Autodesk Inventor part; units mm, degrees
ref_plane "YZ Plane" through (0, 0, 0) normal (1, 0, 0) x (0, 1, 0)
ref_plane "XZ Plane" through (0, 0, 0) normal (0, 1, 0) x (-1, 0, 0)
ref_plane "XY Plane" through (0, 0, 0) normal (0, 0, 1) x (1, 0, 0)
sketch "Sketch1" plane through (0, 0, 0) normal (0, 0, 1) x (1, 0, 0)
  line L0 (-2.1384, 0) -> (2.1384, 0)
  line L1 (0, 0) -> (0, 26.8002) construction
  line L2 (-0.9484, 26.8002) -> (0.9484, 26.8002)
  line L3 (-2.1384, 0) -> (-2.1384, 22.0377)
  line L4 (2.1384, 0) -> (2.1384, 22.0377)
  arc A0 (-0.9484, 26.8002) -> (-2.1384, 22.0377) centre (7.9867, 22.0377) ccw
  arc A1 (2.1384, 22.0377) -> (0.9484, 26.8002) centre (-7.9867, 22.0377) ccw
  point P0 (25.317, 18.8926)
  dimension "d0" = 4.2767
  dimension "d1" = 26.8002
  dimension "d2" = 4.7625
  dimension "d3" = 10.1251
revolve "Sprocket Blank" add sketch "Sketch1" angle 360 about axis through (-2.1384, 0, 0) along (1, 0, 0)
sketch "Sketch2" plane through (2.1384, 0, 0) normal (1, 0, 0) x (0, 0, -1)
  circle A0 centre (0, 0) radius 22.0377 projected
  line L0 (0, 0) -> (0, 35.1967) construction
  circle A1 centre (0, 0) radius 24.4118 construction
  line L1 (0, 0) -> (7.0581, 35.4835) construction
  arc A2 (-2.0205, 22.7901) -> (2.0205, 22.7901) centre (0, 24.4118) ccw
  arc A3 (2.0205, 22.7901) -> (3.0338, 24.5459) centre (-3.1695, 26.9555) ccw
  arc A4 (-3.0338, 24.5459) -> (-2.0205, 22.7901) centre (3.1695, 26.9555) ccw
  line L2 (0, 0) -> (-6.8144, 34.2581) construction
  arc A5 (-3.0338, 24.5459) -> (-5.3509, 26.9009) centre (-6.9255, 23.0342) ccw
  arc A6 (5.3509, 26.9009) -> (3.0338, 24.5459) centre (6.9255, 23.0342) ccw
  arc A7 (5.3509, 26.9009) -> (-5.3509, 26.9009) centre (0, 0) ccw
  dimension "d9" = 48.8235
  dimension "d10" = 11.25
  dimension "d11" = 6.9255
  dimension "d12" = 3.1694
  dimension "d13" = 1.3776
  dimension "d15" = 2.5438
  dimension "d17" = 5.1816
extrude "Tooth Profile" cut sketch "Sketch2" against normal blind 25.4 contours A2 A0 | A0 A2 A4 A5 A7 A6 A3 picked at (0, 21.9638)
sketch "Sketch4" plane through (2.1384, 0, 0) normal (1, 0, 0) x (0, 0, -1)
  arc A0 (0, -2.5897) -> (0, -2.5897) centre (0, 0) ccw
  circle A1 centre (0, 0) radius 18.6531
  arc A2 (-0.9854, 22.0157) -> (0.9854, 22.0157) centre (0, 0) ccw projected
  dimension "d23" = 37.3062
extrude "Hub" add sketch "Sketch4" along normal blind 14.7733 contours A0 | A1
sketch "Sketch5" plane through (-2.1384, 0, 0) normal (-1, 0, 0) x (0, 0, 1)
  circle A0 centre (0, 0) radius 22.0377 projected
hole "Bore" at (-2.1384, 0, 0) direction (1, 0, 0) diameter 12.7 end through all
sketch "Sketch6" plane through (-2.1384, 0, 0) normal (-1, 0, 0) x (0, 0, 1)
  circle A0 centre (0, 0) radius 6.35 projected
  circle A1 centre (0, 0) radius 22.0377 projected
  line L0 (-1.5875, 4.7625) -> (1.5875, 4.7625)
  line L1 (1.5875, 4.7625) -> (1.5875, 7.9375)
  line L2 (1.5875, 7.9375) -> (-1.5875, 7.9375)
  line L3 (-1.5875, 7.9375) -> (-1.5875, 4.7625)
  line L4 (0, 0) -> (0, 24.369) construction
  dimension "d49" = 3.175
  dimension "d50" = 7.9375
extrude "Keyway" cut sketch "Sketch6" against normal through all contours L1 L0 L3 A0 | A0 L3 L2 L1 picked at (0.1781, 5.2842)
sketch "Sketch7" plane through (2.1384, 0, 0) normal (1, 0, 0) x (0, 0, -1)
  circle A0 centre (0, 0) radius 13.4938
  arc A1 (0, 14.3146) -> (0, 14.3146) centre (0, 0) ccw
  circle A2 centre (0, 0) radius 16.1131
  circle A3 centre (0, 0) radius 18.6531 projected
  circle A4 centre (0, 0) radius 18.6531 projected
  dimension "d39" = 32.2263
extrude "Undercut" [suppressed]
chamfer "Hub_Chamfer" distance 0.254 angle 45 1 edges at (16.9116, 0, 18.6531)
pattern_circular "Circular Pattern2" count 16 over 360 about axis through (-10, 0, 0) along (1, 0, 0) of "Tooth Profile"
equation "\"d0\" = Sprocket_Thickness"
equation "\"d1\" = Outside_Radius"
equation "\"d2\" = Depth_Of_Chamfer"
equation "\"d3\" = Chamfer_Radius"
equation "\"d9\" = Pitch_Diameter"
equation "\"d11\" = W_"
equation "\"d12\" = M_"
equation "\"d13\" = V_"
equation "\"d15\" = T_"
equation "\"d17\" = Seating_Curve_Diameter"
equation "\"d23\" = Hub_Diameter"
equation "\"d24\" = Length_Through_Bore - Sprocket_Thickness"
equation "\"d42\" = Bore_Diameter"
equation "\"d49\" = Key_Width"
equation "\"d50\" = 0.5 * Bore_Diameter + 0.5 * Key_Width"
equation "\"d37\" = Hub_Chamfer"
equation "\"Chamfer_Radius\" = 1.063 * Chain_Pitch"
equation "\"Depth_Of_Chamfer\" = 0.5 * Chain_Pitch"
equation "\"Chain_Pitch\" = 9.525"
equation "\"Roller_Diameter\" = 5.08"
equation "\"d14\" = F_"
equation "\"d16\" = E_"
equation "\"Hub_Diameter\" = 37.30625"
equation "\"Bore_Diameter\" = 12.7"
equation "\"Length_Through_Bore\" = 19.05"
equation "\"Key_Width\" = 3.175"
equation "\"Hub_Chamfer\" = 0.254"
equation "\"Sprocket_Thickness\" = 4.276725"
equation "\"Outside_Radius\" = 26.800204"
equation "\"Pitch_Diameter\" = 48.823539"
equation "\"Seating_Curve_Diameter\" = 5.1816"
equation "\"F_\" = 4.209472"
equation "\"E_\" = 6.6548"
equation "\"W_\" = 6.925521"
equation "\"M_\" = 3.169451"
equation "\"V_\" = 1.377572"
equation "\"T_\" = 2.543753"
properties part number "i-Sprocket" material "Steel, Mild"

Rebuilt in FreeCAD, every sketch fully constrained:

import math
import FreeCAD as App
import Part
import Sketcher

V = App.Vector
Q = App.Units.Quantity


def edges_at(feature, points):
    """Names of the edges that pass closest to the given points."""
    edges = feature.Shape.Edges
    near = lambda p: min(range(len(edges)), key=lambda i: edges[i].distToShape(Part.Vertex(*p))[0])
    return sorted({f"Edge{near(p) + 1}" for p in points})

doc = App.newDocument("Part")
body = doc.addObject("PartDesign::Body", "Body")

sketch1 = doc.addObject("Sketcher::SketchObject", "Sketch")
body.addObject(sketch1)
sketch1.AttachmentSupport = (doc.XY_Plane, [""])
sketch1.MapMode = "FlatFace"
sketch1.addGeometry([
    Part.LineSegment(V(-2.1, 22, 0), V(-2.1, 0, 0)),
    Part.LineSegment(V(-2.1, 0, 0), V(2.1, 0, 0)),
    Part.LineSegment(V(2.1, 0, 0), V(2.1, 22, 0)),
    Part.ArcOfCircle(Part.Circle(V(-8, 22, 0), V(0, 0, 1), 10.1), math.radians(0), math.radians(28)),
    Part.LineSegment(V(0.9, 26.8, 0), V(-0.9, 26.8, 0)),
    Part.ArcOfCircle(Part.Circle(V(8, 22, 0), V(0, 0, 1), 10.1), math.radians(152), math.radians(180)),
], False)
sketch1.addConstraint([
    Sketcher.Constraint("Coincident", 0, 2, 1, 1),
    Sketcher.Constraint("Coincident", 1, 2, 2, 1),
    Sketcher.Constraint("Tangent", 2, 2, 3, 1),
    Sketcher.Constraint("Coincident", 3, 2, 4, 1),
    Sketcher.Constraint("Coincident", 4, 2, 5, 1),
    Sketcher.Constraint("Tangent", 5, 2, 0, 1),
    Sketcher.Constraint("Vertical", 0),
    Sketcher.Constraint("Horizontal", 1),
    Sketcher.Constraint("Vertical", 2),
    Sketcher.Constraint("Horizontal", 4),
    Sketcher.Constraint("Equal", 3, 5),
    Sketcher.Constraint("Symmetric", 0, 2, 1, 2, -1, 1),
    Sketcher.Constraint("Horizontal", 3, 3, 5, 3),
    Sketcher.Constraint("Radius", 3, 10.125),
    Sketcher.Constraint("DistanceY", 2, 2, 3, 2, Q("0.1875 in")),
    Sketcher.Constraint("DistanceX", 1, 1, 1, 2, 4.2768),
    Sketcher.Constraint("DistanceY", -1, 1, 3, 2, 26.8002),
])
revolution = doc.addObject("PartDesign::Revolution", "Revolution")
body.addObject(revolution)
revolution.Profile = sketch1
revolution.ReferenceAxis = (sketch1, ["H_Axis"])
revolution.Angle = 360

sketch2 = doc.addObject("Sketcher::SketchObject", "Sketch001")
body.addObject(sketch2)
sketch2.AttachmentSupport = (doc.YZ_Plane, [""])
sketch2.MapMode = "FlatFace"
sketch2.AttachmentOffset = App.Placement(V(0, 0, 0.084189 * 25.4), App.Rotation())
sketch2.addGeometry([
    Part.ArcOfCircle(Part.Circle(V(26.956313, 3.170689, 0), V(0, 0, 1), 6.656258), math.radians(-128.74895), math.radians(-111.230901)),
    Part.ArcOfCircle(Part.Circle(V(23.0342, -6.9255, 0), V(0, 0, 1), 4.175013), math.radians(22.157167), math.radians(68.771736)),
    Part.ArcOfCircle(Part.Circle(V(0, 0, 0), V(0, 0, 1), 27.427916), math.radians(-11.249956), math.radians(11.249956)),
    Part.ArcOfCircle(Part.Circle(V(23.0342, 6.9255, 0), V(0, 0, 1), 4.174993), math.radians(-68.771736), math.radians(-22.157167)),
    Part.ArcOfCircle(Part.Circle(V(26.954878, -3.168202, 0), V(0, 0, 1), 6.65342), math.radians(111.227135), math.radians(128.752715)),
    Part.ArcOfCircle(Part.Circle(V(24.4118, 0, 0), V(0, 0, 1), 2.590817), math.radians(128.751333), math.radians(231.248667)),
], False)
sketch2.addConstraint([
    Sketcher.Constraint("Coincident", 0, 2, 1, 2),
    Sketcher.Constraint("Coincident", 1, 1, 2, 1),
    Sketcher.Constraint("Coincident", 2, 2, 3, 2),
    Sketcher.Constraint("Coincident", 3, 1, 4, 1),
    Sketcher.Constraint("Coincident", 4, 2, 5, 1),
    Sketcher.Constraint("Coincident", 5, 2, 0, 1),
    Sketcher.Constraint("Coincident", 2, 3, -1, 1),
    Sketcher.Constraint("PointOnObject", 5, 3, -1),
    Sketcher.Constraint("Radius", 5, Q("0.102 in")),
    Sketcher.Constraint("DistanceY", 1, 3, -1, 1, 6.9255),
    Sketcher.Constraint("DistanceY", -1, 1, 3, 3, 6.9255),
    Sketcher.Constraint("Radius", 0, 6.6563),
    Sketcher.Constraint("Radius", 1, 4.175),
    Sketcher.Constraint("Radius", 2, 27.428),
    Sketcher.Constraint("Radius", 3, 4.175),
    Sketcher.Constraint("Radius", 4, 6.6534),
    Sketcher.Constraint("DistanceX", 1, 3, 5, 3, 1.3776),
    Sketcher.Constraint("DistanceX", 3, 3, 5, 3, 1.3776),
    Sketcher.Constraint("DistanceY", 1, 3, 1, 1, Q("0.062 in")),
    Sketcher.Constraint("DistanceY", 4, 3, 0, 2, Q("0.0053 in")),
    Sketcher.Constraint("DistanceX", 3, 1, 0, 3, Q("0.0949 in")),
    Sketcher.Constraint("DistanceY", 4, 2, 3, 1, Q("0.0399 in")),
    Sketcher.Constraint("DistanceY", 0, 2, 5, 2, Q("0.0399 in")),
])
pocket1 = doc.addObject("PartDesign::Pocket", "Pocket")
body.addObject(pocket1)
pocket1.Profile = sketch2
pocket1.Length = Q("1 in")

sketch3 = doc.addObject("Sketcher::SketchObject", "Sketch002")
body.addObject(sketch3)
sketch3.AttachmentSupport = (doc.YZ_Plane, [""])
sketch3.MapMode = "FlatFace"
sketch3.AttachmentOffset = App.Placement(V(0, 0, 0.084189 * 25.4), App.Rotation())
sketch3.addGeometry(Part.Circle(V(0, 0, 0), V(0, 0, 1), 19), False)
sketch3.addConstraint([
    Sketcher.Constraint("Coincident", 0, 3, -1, 1),
    Sketcher.Constraint("Diameter", 0, Q("1.468748 in")),
])
pad1 = doc.addObject("PartDesign::Pad", "Pad")
body.addObject(pad1)
pad1.Profile = sketch3
pad1.Length = 14.7733

sketch4 = doc.addObject("Sketcher::SketchObject", "Sketch003")
body.addObject(sketch4)
sketch4.AttachmentSupport = (doc.YZ_Plane, [""])
sketch4.MapMode = "FlatFace"
sketch4.AttachmentOffset = App.Placement(V(0, 0, -0.084189 * 25.4), App.Rotation())
sketch4.addGeometry(Part.Circle(V(0, 0, 0), V(0, 0, 1), 6), False)
sketch4.addConstraint([
    Sketcher.Constraint("Coincident", 0, 3, -1, 1),
    Sketcher.Constraint("Diameter", 0, Q("0.5 in")),
])
doc.recompute()
hole = doc.addObject("PartDesign::Hole", "Hole")
body.addObject(hole)
hole.Profile = sketch4
hole.ThreadType = "None"
hole.Diameter = Q("0.5 in")
hole.DepthType = "ThroughAll"
hole.Reversed = True

sketch5 = doc.addObject("Sketcher::SketchObject", "Sketch004")
body.addObject(sketch5)
sketch5.AttachmentSupport = (doc.YZ_Plane, [""])
sketch5.MapMode = "FlatFace"
sketch5.AttachmentOffset = App.Placement(V(0, 0, -0.084189 * 25.4), App.Rotation())
sketch5.addGeometry([
    Part.LineSegment(V(4.8, 1.6, 0), V(7.9, 1.6, 0)),
    Part.LineSegment(V(7.9, 1.6, 0), V(7.9, -1.6, 0)),
    Part.LineSegment(V(7.9, -1.6, 0), V(4.8, -1.6, 0)),
    Part.LineSegment(V(4.8, -1.6, 0), V(4.8, 1.6, 0)),
], False)
sketch5.addConstraint([
    Sketcher.Constraint("Coincident", 0, 2, 1, 1),
    Sketcher.Constraint("Coincident", 1, 2, 2, 1),
    Sketcher.Constraint("Coincident", 2, 2, 3, 1),
    Sketcher.Constraint("Coincident", 3, 2, 0, 1),
    Sketcher.Constraint("Horizontal", 0),
    Sketcher.Constraint("Vertical", 1),
    Sketcher.Constraint("Horizontal", 2),
    Sketcher.Constraint("Vertical", 3),
    Sketcher.Constraint("Equal", 2, 1),
    Sketcher.Constraint("DistanceX", 0, 1, 0, 2, Q("0.125 in")),
    Sketcher.Constraint("DistanceX", -1, 1, 0, 2, Q("0.3125 in")),
    Sketcher.Constraint("DistanceY", -1, 1, 0, 2, Q("0.0625 in")),
])
pocket2 = doc.addObject("PartDesign::Pocket", "Pocket001")
body.addObject(pocket2)
pocket2.Profile = sketch5
pocket2.Type = "ThroughAll"
pocket2.Reversed = True
doc.recompute()

chamfer = doc.addObject("PartDesign::Chamfer", "Chamfer")
body.addObject(chamfer)
chamfer.Base = (pocket2, edges_at(pocket2, [(16.912, 0, 18.653)]))
chamfer.Size = Q("0.01 in")
doc.recompute()

polarpattern = doc.addObject("PartDesign::PolarPattern", "PolarPattern")
body.addObject(polarpattern)
polarpattern.Originals = [pocket1]
polarpattern.Axis = (doc.X_Axis, [""])
polarpattern.Angle = 360
polarpattern.Occurrences = 16
body.Tip = polarpattern

doc.recompute()
